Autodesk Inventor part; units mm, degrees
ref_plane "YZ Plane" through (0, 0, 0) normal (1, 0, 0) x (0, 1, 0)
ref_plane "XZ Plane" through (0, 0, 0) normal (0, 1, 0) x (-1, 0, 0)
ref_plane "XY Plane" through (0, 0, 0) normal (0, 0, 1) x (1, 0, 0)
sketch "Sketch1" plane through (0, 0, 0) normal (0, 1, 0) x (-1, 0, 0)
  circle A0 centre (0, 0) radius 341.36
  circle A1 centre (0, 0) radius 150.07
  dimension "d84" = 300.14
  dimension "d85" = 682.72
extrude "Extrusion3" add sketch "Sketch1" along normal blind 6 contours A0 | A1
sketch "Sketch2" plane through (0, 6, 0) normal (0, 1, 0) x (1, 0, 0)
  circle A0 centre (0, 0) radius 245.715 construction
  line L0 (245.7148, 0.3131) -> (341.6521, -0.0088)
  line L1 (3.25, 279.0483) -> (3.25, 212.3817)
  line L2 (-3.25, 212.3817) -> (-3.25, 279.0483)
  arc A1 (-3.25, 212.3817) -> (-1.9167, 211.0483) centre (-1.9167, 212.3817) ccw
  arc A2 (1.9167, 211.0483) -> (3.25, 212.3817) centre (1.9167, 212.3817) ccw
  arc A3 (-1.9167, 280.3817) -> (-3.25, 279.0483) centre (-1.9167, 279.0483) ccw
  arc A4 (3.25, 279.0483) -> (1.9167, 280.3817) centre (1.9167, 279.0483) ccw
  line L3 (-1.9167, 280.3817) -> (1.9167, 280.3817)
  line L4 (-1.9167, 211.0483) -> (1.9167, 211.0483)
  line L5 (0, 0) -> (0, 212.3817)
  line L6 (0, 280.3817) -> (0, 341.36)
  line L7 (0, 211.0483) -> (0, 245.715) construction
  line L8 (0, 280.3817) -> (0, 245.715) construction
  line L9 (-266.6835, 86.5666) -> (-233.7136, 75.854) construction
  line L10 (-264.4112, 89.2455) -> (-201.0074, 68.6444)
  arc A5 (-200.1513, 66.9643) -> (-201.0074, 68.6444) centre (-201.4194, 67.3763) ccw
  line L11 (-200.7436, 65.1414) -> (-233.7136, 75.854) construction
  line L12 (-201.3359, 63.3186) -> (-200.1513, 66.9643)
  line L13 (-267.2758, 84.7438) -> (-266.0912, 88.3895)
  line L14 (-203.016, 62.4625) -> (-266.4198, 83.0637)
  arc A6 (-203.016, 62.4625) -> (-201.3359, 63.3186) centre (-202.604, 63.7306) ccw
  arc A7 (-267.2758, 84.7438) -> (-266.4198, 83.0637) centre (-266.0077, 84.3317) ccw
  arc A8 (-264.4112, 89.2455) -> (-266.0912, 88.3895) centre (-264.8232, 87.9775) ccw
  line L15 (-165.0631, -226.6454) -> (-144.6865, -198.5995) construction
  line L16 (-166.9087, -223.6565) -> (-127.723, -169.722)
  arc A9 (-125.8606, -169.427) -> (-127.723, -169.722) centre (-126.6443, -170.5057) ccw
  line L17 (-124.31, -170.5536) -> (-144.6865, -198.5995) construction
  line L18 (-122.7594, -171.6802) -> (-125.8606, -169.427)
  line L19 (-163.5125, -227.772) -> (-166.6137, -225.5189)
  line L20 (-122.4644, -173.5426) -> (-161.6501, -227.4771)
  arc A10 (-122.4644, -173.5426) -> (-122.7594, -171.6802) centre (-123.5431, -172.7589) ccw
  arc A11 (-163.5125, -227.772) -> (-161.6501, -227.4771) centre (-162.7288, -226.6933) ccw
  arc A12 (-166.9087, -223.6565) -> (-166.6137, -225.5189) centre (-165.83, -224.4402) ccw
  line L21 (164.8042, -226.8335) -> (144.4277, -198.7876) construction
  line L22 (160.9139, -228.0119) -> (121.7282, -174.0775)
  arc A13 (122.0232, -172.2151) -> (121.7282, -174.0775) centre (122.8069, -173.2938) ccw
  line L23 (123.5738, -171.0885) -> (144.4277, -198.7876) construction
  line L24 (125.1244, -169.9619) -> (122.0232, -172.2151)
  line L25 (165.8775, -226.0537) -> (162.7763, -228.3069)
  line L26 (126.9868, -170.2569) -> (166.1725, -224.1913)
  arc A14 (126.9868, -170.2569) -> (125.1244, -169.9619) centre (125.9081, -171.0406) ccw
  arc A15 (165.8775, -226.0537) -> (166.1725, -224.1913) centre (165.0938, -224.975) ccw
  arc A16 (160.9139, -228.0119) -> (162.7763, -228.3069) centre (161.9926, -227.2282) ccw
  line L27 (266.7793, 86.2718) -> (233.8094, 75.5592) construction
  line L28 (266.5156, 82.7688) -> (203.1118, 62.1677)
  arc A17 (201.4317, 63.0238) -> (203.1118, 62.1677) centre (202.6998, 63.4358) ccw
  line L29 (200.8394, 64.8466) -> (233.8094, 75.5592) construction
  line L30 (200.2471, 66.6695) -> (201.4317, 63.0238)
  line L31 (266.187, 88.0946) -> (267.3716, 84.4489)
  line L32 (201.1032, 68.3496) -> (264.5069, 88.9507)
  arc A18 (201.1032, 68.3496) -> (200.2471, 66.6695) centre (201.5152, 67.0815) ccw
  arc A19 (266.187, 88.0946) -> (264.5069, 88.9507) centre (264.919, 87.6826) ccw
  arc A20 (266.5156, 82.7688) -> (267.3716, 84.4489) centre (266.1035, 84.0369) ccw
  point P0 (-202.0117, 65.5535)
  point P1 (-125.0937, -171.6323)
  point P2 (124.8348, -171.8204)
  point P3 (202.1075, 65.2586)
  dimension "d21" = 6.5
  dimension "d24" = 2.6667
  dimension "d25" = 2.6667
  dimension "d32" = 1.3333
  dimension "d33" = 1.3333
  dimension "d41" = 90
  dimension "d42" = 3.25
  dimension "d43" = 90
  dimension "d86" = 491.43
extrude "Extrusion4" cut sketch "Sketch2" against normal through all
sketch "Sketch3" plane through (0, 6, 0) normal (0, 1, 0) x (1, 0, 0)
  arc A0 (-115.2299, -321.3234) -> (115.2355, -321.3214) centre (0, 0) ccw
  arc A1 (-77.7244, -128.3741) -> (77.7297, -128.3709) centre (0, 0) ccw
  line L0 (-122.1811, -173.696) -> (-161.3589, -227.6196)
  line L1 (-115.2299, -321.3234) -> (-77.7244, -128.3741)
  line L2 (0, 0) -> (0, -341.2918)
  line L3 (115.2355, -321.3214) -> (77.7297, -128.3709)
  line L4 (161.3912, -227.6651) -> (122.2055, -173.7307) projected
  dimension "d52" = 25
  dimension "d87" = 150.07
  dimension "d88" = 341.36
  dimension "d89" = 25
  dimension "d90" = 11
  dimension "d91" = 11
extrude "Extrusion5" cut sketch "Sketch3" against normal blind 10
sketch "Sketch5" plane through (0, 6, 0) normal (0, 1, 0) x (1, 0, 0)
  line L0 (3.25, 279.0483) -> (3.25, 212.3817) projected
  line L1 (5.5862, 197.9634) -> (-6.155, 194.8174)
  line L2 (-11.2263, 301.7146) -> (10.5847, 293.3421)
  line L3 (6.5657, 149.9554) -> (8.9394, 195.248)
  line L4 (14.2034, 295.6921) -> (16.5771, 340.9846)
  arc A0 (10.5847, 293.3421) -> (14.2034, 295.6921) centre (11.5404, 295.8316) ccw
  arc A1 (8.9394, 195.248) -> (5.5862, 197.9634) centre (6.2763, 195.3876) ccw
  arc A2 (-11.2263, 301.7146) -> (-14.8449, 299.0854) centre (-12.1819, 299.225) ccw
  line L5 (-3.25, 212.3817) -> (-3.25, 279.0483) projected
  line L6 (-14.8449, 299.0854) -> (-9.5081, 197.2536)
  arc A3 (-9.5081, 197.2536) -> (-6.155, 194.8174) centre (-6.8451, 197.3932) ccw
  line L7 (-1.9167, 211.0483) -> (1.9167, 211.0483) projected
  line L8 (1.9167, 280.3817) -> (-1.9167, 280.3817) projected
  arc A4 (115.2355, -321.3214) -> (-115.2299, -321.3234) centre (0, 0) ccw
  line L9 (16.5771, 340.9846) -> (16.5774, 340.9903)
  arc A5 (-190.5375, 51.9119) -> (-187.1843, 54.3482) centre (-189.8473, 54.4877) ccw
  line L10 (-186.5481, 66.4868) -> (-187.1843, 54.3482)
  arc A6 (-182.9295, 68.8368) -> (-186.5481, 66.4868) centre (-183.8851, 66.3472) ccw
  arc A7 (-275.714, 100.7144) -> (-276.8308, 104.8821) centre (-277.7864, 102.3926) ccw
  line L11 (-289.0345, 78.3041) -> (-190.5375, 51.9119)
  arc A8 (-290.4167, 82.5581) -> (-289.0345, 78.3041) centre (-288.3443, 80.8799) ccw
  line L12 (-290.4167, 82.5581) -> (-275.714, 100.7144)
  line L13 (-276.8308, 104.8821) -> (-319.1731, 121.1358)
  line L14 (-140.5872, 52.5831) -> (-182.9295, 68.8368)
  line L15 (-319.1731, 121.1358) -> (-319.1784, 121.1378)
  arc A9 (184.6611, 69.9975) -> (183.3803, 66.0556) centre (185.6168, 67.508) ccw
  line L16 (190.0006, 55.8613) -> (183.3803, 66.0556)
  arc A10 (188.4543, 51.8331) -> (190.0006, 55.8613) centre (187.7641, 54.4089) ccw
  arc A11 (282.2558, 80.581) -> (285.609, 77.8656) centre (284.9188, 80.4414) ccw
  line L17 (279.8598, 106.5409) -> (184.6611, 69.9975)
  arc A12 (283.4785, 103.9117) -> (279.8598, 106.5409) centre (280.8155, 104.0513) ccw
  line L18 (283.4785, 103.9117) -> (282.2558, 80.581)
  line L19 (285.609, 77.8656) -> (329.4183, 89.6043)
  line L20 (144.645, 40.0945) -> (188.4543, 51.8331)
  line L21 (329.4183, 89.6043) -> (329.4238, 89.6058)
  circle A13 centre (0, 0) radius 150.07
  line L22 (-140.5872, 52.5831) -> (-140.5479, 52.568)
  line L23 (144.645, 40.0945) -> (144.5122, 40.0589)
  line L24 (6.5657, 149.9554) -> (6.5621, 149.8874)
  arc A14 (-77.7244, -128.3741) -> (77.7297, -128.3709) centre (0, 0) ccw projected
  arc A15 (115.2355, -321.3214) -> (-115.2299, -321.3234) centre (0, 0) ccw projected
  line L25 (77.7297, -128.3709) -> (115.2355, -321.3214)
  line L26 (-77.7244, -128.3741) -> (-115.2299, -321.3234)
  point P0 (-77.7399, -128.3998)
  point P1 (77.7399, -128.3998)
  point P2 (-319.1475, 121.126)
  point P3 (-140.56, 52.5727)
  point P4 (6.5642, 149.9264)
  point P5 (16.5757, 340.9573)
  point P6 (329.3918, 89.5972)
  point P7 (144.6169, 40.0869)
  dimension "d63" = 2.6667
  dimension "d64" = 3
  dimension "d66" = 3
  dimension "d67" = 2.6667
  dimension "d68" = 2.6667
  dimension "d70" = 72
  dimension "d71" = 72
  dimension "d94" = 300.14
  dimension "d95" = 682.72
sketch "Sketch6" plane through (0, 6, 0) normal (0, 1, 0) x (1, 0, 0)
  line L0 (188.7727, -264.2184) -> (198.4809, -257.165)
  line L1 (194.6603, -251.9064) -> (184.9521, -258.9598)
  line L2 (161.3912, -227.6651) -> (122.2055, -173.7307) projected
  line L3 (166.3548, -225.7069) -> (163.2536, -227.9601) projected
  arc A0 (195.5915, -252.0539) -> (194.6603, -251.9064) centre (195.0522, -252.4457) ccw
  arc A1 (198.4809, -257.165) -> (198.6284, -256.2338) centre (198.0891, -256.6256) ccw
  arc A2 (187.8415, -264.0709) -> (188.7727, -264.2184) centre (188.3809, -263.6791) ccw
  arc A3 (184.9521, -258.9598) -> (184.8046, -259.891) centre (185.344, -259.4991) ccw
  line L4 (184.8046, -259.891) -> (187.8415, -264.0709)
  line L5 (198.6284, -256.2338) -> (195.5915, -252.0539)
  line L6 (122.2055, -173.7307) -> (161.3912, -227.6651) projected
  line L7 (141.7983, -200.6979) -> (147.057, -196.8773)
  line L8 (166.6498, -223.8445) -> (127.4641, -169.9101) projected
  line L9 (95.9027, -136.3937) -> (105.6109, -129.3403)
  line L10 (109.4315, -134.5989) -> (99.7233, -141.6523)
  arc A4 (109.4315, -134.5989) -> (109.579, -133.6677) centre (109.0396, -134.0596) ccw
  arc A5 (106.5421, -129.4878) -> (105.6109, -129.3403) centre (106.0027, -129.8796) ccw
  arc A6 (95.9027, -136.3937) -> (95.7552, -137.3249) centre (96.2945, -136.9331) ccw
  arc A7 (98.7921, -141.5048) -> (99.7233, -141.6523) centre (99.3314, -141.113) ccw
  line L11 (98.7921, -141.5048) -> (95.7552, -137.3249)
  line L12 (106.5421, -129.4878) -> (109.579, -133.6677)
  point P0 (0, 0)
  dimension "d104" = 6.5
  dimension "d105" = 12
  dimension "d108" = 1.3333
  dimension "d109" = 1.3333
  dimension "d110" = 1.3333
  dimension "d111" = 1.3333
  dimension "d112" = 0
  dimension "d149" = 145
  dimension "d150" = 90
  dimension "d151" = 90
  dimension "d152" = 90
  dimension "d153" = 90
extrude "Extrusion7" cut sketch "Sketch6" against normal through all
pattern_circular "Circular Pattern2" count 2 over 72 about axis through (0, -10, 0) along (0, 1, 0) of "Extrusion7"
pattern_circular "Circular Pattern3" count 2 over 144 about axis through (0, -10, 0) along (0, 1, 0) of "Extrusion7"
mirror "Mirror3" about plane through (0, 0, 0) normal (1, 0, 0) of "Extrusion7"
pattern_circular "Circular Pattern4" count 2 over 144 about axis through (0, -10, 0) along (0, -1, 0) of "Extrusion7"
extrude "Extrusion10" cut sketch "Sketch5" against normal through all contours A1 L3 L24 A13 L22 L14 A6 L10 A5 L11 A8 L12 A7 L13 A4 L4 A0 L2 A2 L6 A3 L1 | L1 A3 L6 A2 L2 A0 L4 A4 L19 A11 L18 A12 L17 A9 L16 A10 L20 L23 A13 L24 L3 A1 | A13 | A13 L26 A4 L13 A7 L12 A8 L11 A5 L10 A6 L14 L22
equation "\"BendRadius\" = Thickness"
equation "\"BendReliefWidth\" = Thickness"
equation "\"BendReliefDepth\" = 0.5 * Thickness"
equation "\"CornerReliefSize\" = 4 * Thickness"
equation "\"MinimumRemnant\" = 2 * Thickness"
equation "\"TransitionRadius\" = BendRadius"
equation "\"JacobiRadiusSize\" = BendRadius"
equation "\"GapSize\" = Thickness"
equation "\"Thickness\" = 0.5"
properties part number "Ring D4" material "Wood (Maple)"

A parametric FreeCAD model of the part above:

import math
import FreeCAD as App
import Part
import Sketcher
Q = App.Units.Quantity

doc = App.newDocument("Part")
body = doc.addObject("PartDesign::Body", "Body")

# Sketch on XZ plane
sketch1 = body.newObject("Sketcher::SketchObject", "Sketch")
sketch1.AttachmentSupport = (doc.getObject("XZ_Plane"), [""])
sketch1.MapMode = "FlatFace"
sketch1.addGeometry(Part.Circle(App.Vector(0, 0, 0), App.Vector(0, 0, 1), 341), False)
sketch1.addConstraint(Sketcher.Constraint("Coincident", 0, 3, -1, 1))
sketch1.addConstraint(Sketcher.Constraint("Diameter", 0, 682.72))
pad1 = body.newObject("PartDesign::Pad", "Pad")
pad1.Profile = sketch1
pad1.Length = 6
pad1.Reversed = True

# Sketch on XZ plane
sketch2 = body.newObject("Sketcher::SketchObject", "Sketch001")
sketch2.AttachmentSupport = (doc.getObject("XZ_Plane"), [""])
sketch2.MapMode = "FlatFace"
sketch2.AttachmentOffset = App.Placement(App.Vector(0, 0, -6), App.Rotation())
sketch2.addGeometry(Part.LineSegment(App.Vector(3.2, -212.4, 0), App.Vector(3.2, -279, 0)), False)
sketch2.addGeometry(Part.ArcOfCircle(Part.Circle(App.Vector(1.9, -279, 0), App.Vector(0, 0, 1), 1.3), math.radians(-90), math.radians(0)), False)
sketch2.addGeometry(Part.LineSegment(App.Vector(1.9, -280.4, 0), App.Vector(-1.9, -280.4, 0)), False)
sketch2.addGeometry(Part.ArcOfCircle(Part.Circle(App.Vector(-1.9, -279, 0), App.Vector(0, 0, 1), 1.3), math.radians(180), math.radians(270)), False)
sketch2.addGeometry(Part.LineSegment(App.Vector(-3.2, -279, 0), App.Vector(-3.2, -212.4, 0)), False)
sketch2.addGeometry(Part.ArcOfCircle(Part.Circle(App.Vector(-1.9, -212.4, 0), App.Vector(0, 0, 1), 1.3), math.radians(90), math.radians(180)), False)
sketch2.addGeometry(Part.LineSegment(App.Vector(-1.9, -211, 0), App.Vector(1.9, -211, 0)), False)
sketch2.addGeometry(Part.ArcOfCircle(Part.Circle(App.Vector(1.9, -212.4, 0), App.Vector(0, 0, 1), 1.3), math.radians(0), math.radians(90)), False)
sketch2.addGeometry(Part.LineSegment(App.Vector(-201, -68.6, 0), App.Vector(-264.4, -89.2, 0)), False)
sketch2.addGeometry(Part.ArcOfCircle(Part.Circle(App.Vector(-264.8, -88, 0), App.Vector(0, 0, 1), 1.3), math.radians(-162), math.radians(-72)), False)
sketch2.addGeometry(Part.LineSegment(App.Vector(-266.1, -88.4, 0), App.Vector(-267.3, -84.7, 0)), False)
sketch2.addGeometry(Part.ArcOfCircle(Part.Circle(App.Vector(-266, -84.3, 0), App.Vector(0, 0, 1), 1.3), math.radians(108), math.radians(198)), False)
sketch2.addGeometry(Part.LineSegment(App.Vector(-266.4, -83.1, 0), App.Vector(-203, -62.5, 0)), False)
sketch2.addGeometry(Part.ArcOfCircle(Part.Circle(App.Vector(-202.6, -63.7, 0), App.Vector(0, 0, 1), 1.3), math.radians(18), math.radians(108)), False)
sketch2.addGeometry(Part.LineSegment(App.Vector(-201.3, -63.3, 0), App.Vector(-200.2, -67, 0)), False)
sketch2.addGeometry(Part.ArcOfCircle(Part.Circle(App.Vector(-201.4, -67.4, 0), App.Vector(0, 0, 1), 1.3), math.radians(-72), math.radians(18)), False)
sketch2.addGeometry(Part.LineSegment(App.Vector(-127.7, 169.7, 0), App.Vector(-166.9, 223.7, 0)), False)
sketch2.addGeometry(Part.ArcOfCircle(Part.Circle(App.Vector(-165.8, 224.4, 0), App.Vector(0, 0, 1), 1.3), math.radians(126), math.radians(216)), False)
sketch2.addGeometry(Part.LineSegment(App.Vector(-166.6, 225.5, 0), App.Vector(-163.5, 227.8, 0)), False)
sketch2.addGeometry(Part.ArcOfCircle(Part.Circle(App.Vector(-162.7, 226.7, 0), App.Vector(0, 0, 1), 1.3), math.radians(36), math.radians(126)), False)
sketch2.addGeometry(Part.LineSegment(App.Vector(-161.7, 227.5, 0), App.Vector(-122.5, 173.5, 0)), False)
sketch2.addGeometry(Part.ArcOfCircle(Part.Circle(App.Vector(-123.5, 172.8, 0), App.Vector(0, 0, 1), 1.3), math.radians(-54), math.radians(36)), False)
sketch2.addGeometry(Part.LineSegment(App.Vector(-122.8, 171.7, 0), App.Vector(-125.9, 169.4, 0)), False)
sketch2.addGeometry(Part.ArcOfCircle(Part.Circle(App.Vector(-126.6, 170.5, 0), App.Vector(0, 0, 1), 1.3), math.radians(-144), math.radians(-54)), False)
sketch2.addGeometry(Part.LineSegment(App.Vector(121.7, 174.1, 0), App.Vector(160.9, 228, 0)), False)
sketch2.addGeometry(Part.ArcOfCircle(Part.Circle(App.Vector(162, 227.2, 0), App.Vector(0, 0, 1), 1.3), math.radians(54), math.radians(144)), False)
sketch2.addGeometry(Part.LineSegment(App.Vector(162.8, 228.3, 0), App.Vector(165.9, 226.1, 0)), False)
sketch2.addGeometry(Part.ArcOfCircle(Part.Circle(App.Vector(165.1, 225, 0), App.Vector(0, 0, 1), 1.3), math.radians(-36), math.radians(54)), False)
sketch2.addGeometry(Part.LineSegment(App.Vector(166.2, 224.2, 0), App.Vector(127, 170.3, 0)), False)
sketch2.addGeometry(Part.ArcOfCircle(Part.Circle(App.Vector(125.9, 171, 0), App.Vector(0, 0, 1), 1.3), math.radians(-126), math.radians(-36)), False)
sketch2.addGeometry(Part.LineSegment(App.Vector(125.1, 170, 0), App.Vector(122, 172.2, 0)), False)
sketch2.addGeometry(Part.ArcOfCircle(Part.Circle(App.Vector(122.8, 173.3, 0), App.Vector(0, 0, 1), 1.3), math.radians(144), math.radians(234)), False)
sketch2.addGeometry(Part.LineSegment(App.Vector(203.1, -62.2, 0), App.Vector(266.5, -82.8, 0)), False)
sketch2.addGeometry(Part.ArcOfCircle(Part.Circle(App.Vector(266.1, -84, 0), App.Vector(0, 0, 1), 1.3), math.radians(-18), math.radians(72)), False)
sketch2.addGeometry(Part.LineSegment(App.Vector(267.4, -84.4, 0), App.Vector(266.2, -88.1, 0)), False)
sketch2.addGeometry(Part.ArcOfCircle(Part.Circle(App.Vector(264.9, -87.7, 0), App.Vector(0, 0, 1), 1.3), math.radians(-108), math.radians(-18)), False)
sketch2.addGeometry(Part.LineSegment(App.Vector(264.5, -89, 0), App.Vector(201.1, -68.3, 0)), False)
sketch2.addGeometry(Part.ArcOfCircle(Part.Circle(App.Vector(201.5, -67.1, 0), App.Vector(0, 0, 1), 1.3), math.radians(162), math.radians(252)), False)
sketch2.addGeometry(Part.LineSegment(App.Vector(200.2, -66.7, 0), App.Vector(201.4, -63, 0)), False)
sketch2.addGeometry(Part.ArcOfCircle(Part.Circle(App.Vector(202.7, -63.4, 0), App.Vector(0, 0, 1), 1.3), math.radians(72), math.radians(162)), False)
sketch2.addConstraint(Sketcher.Constraint("Tangent", 0, 2, 1, 2))
sketch2.addConstraint(Sketcher.Constraint("Tangent", 1, 1, 2, 1))
sketch2.addConstraint(Sketcher.Constraint("Tangent", 2, 2, 3, 2))
sketch2.addConstraint(Sketcher.Constraint("Tangent", 3, 1, 4, 1))
sketch2.addConstraint(Sketcher.Constraint("Tangent", 4, 2, 5, 2))
sketch2.addConstraint(Sketcher.Constraint("Tangent", 5, 1, 6, 1))
sketch2.addConstraint(Sketcher.Constraint("Tangent", 6, 2, 7, 2))
sketch2.addConstraint(Sketcher.Constraint("Tangent", 7, 1, 0, 1))
sketch2.addConstraint(Sketcher.Constraint("Tangent", 8, 2, 9, 2))
sketch2.addConstraint(Sketcher.Constraint("Tangent", 9, 1, 10, 1))
sketch2.addConstraint(Sketcher.Constraint("Tangent", 10, 2, 11, 2))
sketch2.addConstraint(Sketcher.Constraint("Tangent", 11, 1, 12, 1))
sketch2.addConstraint(Sketcher.Constraint("Tangent", 12, 2, 13, 2))
sketch2.addConstraint(Sketcher.Constraint("Tangent", 13, 1, 14, 1))
sketch2.addConstraint(Sketcher.Constraint("Tangent", 14, 2, 15, 2))
sketch2.addConstraint(Sketcher.Constraint("Tangent", 15, 1, 8, 1))
sketch2.addConstraint(Sketcher.Constraint("Tangent", 16, 2, 17, 2))
sketch2.addConstraint(Sketcher.Constraint("Tangent", 17, 1, 18, 1))
sketch2.addConstraint(Sketcher.Constraint("Tangent", 18, 2, 19, 2))
sketch2.addConstraint(Sketcher.Constraint("Tangent", 19, 1, 20, 1))
sketch2.addConstraint(Sketcher.Constraint("Tangent", 20, 2, 21, 2))
sketch2.addConstraint(Sketcher.Constraint("Tangent", 21, 1, 22, 1))
sketch2.addConstraint(Sketcher.Constraint("Tangent", 22, 2, 23, 2))
sketch2.addConstraint(Sketcher.Constraint("Tangent", 23, 1, 16, 1))
sketch2.addConstraint(Sketcher.Constraint("Tangent", 24, 2, 25, 2))
sketch2.addConstraint(Sketcher.Constraint("Tangent", 25, 1, 26, 1))
sketch2.addConstraint(Sketcher.Constraint("Tangent", 26, 2, 27, 2))
sketch2.addConstraint(Sketcher.Constraint("Tangent", 27, 1, 28, 1))
sketch2.addConstraint(Sketcher.Constraint("Tangent", 28, 2, 29, 2))
sketch2.addConstraint(Sketcher.Constraint("Tangent", 29, 1, 30, 1))
sketch2.addConstraint(Sketcher.Constraint("Tangent", 30, 2, 31, 2))
sketch2.addConstraint(Sketcher.Constraint("Tangent", 31, 1, 24, 1))
sketch2.addConstraint(Sketcher.Constraint("Tangent", 32, 2, 33, 2))
sketch2.addConstraint(Sketcher.Constraint("Tangent", 33, 1, 34, 1))
sketch2.addConstraint(Sketcher.Constraint("Tangent", 34, 2, 35, 2))
sketch2.addConstraint(Sketcher.Constraint("Tangent", 35, 1, 36, 1))
sketch2.addConstraint(Sketcher.Constraint("Tangent", 36, 2, 37, 2))
sketch2.addConstraint(Sketcher.Constraint("Tangent", 37, 1, 38, 1))
sketch2.addConstraint(Sketcher.Constraint("Tangent", 38, 2, 39, 2))
sketch2.addConstraint(Sketcher.Constraint("Tangent", 39, 1, 32, 1))
sketch2.addConstraint(Sketcher.Constraint("Vertical", 0))
sketch2.addConstraint(Sketcher.Constraint("Horizontal", 2))
sketch2.addConstraint(Sketcher.Constraint("Vertical", 4))
sketch2.addConstraint(Sketcher.Constraint("Horizontal", 6))
sketch2.addConstraint(Sketcher.Constraint("Equal", 1, 3))
sketch2.addConstraint(Sketcher.Constraint("Equal", 3, 5))
sketch2.addConstraint(Sketcher.Constraint("Equal", 5, 7))
sketch2.addConstraint(Sketcher.Constraint("Equal", 7, 9))
sketch2.addConstraint(Sketcher.Constraint("Equal", 9, 11))
sketch2.addConstraint(Sketcher.Constraint("Equal", 11, 13))
sketch2.addConstraint(Sketcher.Constraint("Equal", 13, 15))
sketch2.addConstraint(Sketcher.Constraint("Equal", 15, 17))
sketch2.addConstraint(Sketcher.Constraint("Equal", 17, 19))
sketch2.addConstraint(Sketcher.Constraint("Equal", 19, 21))
sketch2.addConstraint(Sketcher.Constraint("Equal", 21, 23))
sketch2.addConstraint(Sketcher.Constraint("Equal", 23, 25))
sketch2.addConstraint(Sketcher.Constraint("Equal", 25, 27))
sketch2.addConstraint(Sketcher.Constraint("Equal", 27, 29))
sketch2.addConstraint(Sketcher.Constraint("Equal", 29, 31))
sketch2.addConstraint(Sketcher.Constraint("Equal", 31, 33))
sketch2.addConstraint(Sketcher.Constraint("Equal", 33, 35))
sketch2.addConstraint(Sketcher.Constraint("Equal", 35, 37))
sketch2.addConstraint(Sketcher.Constraint("Equal", 37, 39))
sketch2.addConstraint(Sketcher.Constraint("Perpendicular", 8, 10))
sketch2.addConstraint(Sketcher.Constraint("Perpendicular", 10, 12))
sketch2.addConstraint(Sketcher.Constraint("Perpendicular", 12, 14))
sketch2.addConstraint(Sketcher.Constraint("Perpendicular", 16, 18))
sketch2.addConstraint(Sketcher.Constraint("Perpendicular", 18, 20))
sketch2.addConstraint(Sketcher.Constraint("Perpendicular", 20, 22))
sketch2.addConstraint(Sketcher.Constraint("Perpendicular", 24, 26))
sketch2.addConstraint(Sketcher.Constraint("Perpendicular", 26, 28))
sketch2.addConstraint(Sketcher.Constraint("Perpendicular", 28, 30))
sketch2.addConstraint(Sketcher.Constraint("Perpendicular", 32, 34))
sketch2.addConstraint(Sketcher.Constraint("Perpendicular", 34, 36))
sketch2.addConstraint(Sketcher.Constraint("Perpendicular", 36, 38))
sketch2.addConstraint(Sketcher.Constraint("Equal", 12, 16))
sketch2.addConstraint(Sketcher.Constraint("Equal", 14, 18))
sketch2.addConstraint(Sketcher.Constraint("Equal", 20, 24))
sketch2.addConstraint(Sketcher.Constraint("Equal", 22, 26))
sketch2.addConstraint(Sketcher.Constraint("Equal", 28, 32))
sketch2.addConstraint(Sketcher.Constraint("Equal", 30, 34))
sketch2.addConstraint(Sketcher.Constraint("Radius", 1, Q("0.0525 in")))
sketch2.addConstraint(Sketcher.Constraint("Angle", 8, Q("-162 deg")))
sketch2.addConstraint(Sketcher.Constraint("Angle", 16, Q("126 deg")))
sketch2.addConstraint(Sketcher.Constraint("Angle", 24, Q("54 deg")))
sketch2.addConstraint(Sketcher.Constraint("Angle", 32, Q("-18 deg")))
sketch2.addConstraint(Sketcher.Constraint("DistanceX", 3, 1, 0, 2, Q("0.2559 in")))
sketch2.addConstraint(Sketcher.Constraint("DistanceX", -1, 1, 0, 2, 3.25))
sketch2.addConstraint(Sketcher.Constraint("DistanceX", 8, 2, 15, 3, Q("2.48 in")))
sketch2.addConstraint(Sketcher.Constraint("DistanceX", 23, 3, -1, 1, Q("4.986 in")))
sketch2.addConstraint(Sketcher.Constraint("DistanceY", -1, 1, 25, 3, Q("8.946 in")))
sketch2.addConstraint(Sketcher.Constraint("DistanceX", -1, 1, 29, 3, Q("4.957 in")))
sketch2.addConstraint(Sketcher.Constraint("DistanceY", 37, 3, -1, 1, Q("2.641 in")))
sketch2.addConstraint(Sketcher.Constraint("DistanceY", 5, 1, -1, 1, Q("8.309 in")))
sketch2.addConstraint(Sketcher.Constraint("DistanceX", 18, 2, -1, 1, Q("6.4375 in")))
sketch2.addConstraint(Sketcher.Constraint("DistanceY", 3, 3, 11, 3, Q("7.666 in")))
sketch2.addConstraint(Sketcher.Constraint("DistanceX", 13, 3, 7, 3, Q("8.052 in")))
sketch2.addConstraint(Sketcher.Constraint("DistanceY", 13, 3, 19, 3, Q("11.434 in")))
sketch2.addConstraint(Sketcher.Constraint("DistanceY", 0, 2, 0, 1, 66.6666))
sketch2.addConstraint(Sketcher.Constraint("DistanceX", -1, 1, 39, 3, Q("7.9803 in")))
pocket1 = body.newObject("PartDesign::Pocket", "Pocket")
pocket1.Profile = sketch2
pocket1.Type = "ThroughAll"
pocket1.Reversed = True

# Sketch on XZ plane
sketch3 = body.newObject("Sketcher::SketchObject", "Sketch002")
sketch3.AttachmentSupport = (doc.getObject("XZ_Plane"), [""])
sketch3.MapMode = "FlatFace"
sketch3.AttachmentOffset = App.Placement(App.Vector(0, 0, -6), App.Rotation())
sketch3.addGeometry(Part.LineSegment(App.Vector(-78, 128, 0), App.Vector(-115, 321, 0)), False)
sketch3.addGeometry(Part.ArcOfCircle(Part.Circle(App.Vector(0, 0, 0), App.Vector(0, 0, 1), 341), math.radians(70), math.radians(110)), False)
sketch3.addGeometry(Part.LineSegment(App.Vector(115, 321, 0), App.Vector(78, 128, 0)), False)
sketch3.addGeometry(Part.ArcOfCircle(Part.Circle(App.Vector(0, 0, 0), App.Vector(0, 0, 1), 150), math.radians(59), math.radians(121)), False)
sketch3.addConstraint(Sketcher.Constraint("Coincident", 0, 2, 1, 2))
sketch3.addConstraint(Sketcher.Constraint("Coincident", 1, 1, 2, 1))
sketch3.addConstraint(Sketcher.Constraint("Coincident", 2, 2, 3, 1))
sketch3.addConstraint(Sketcher.Constraint("Coincident", 3, 2, 0, 1))
sketch3.addConstraint(Sketcher.Constraint("Coincident", 1, 3, -1, 1))
sketch3.addConstraint(Sketcher.Constraint("Coincident", 3, 3, -1, 1))
sketch3.addConstraint(Sketcher.Constraint("Radius", 1, 341.36))
sketch3.addConstraint(Sketcher.Constraint("Radius", 3, 150.07))
sketch3.addConstraint(Sketcher.Constraint("Angle", 0, Q("101 deg")))
sketch3.addConstraint(Sketcher.Constraint("Angle", 2, Q("-101 deg")))
sketch3.addConstraint(Sketcher.Constraint("Distance", 0, Q("7.7386 in")))
sketch3.addConstraint(Sketcher.Constraint("Distance", 2, 196.562))
pocket2 = body.newObject("PartDesign::Pocket", "Pocket001")
pocket2.Profile = sketch3
pocket2.Length = Q("0.3937008 in")
pocket2.Reversed = True

# Sketch on XZ plane
sketch4 = body.newObject("Sketcher::SketchObject", "Sketch003")
sketch4.AttachmentSupport = (doc.getObject("XZ_Plane"), [""])
sketch4.MapMode = "FlatFace"
sketch4.AttachmentOffset = App.Placement(App.Vector(0, 0, -6), App.Rotation())
sketch4.addGeometry(Part.ArcOfCircle(Part.Circle(App.Vector(188.4, 263.7, 0), App.Vector(0, 0, 1), 0.7), math.radians(54), math.radians(144)), False)
sketch4.addGeometry(Part.LineSegment(App.Vector(188.8, 264.2, 0), App.Vector(198.5, 257.2, 0)), False)
sketch4.addGeometry(Part.ArcOfCircle(Part.Circle(App.Vector(198.1, 256.6, 0), App.Vector(0, 0, 1), 0.7), math.radians(-36), math.radians(54)), False)
sketch4.addGeometry(Part.LineSegment(App.Vector(198.6, 256.2, 0), App.Vector(195.6, 252.1, 0)), False)
sketch4.addGeometry(Part.ArcOfCircle(Part.Circle(App.Vector(195.1, 252.4, 0), App.Vector(0, 0, 1), 0.7), math.radians(-126), math.radians(-36)), False)
sketch4.addGeometry(Part.LineSegment(App.Vector(194.7, 251.9, 0), App.Vector(185, 259, 0)), False)
sketch4.addGeometry(Part.ArcOfCircle(Part.Circle(App.Vector(185.3, 259.5, 0), App.Vector(0, 0, 1), 0.7), math.radians(144), math.radians(234)), False)
sketch4.addGeometry(Part.LineSegment(App.Vector(184.8, 259.9, 0), App.Vector(187.8, 264.1, 0)), False)
sketch4.addGeometry(Part.LineSegment(App.Vector(105.6, 129.3, 0), App.Vector(95.9, 136.4, 0)), False)
sketch4.addGeometry(Part.ArcOfCircle(Part.Circle(App.Vector(96.3, 136.9, 0), App.Vector(0, 0, 1), 0.7), math.radians(144), math.radians(234)), False)
sketch4.addGeometry(Part.LineSegment(App.Vector(95.8, 137.3, 0), App.Vector(98.8, 141.5, 0)), False)
sketch4.addGeometry(Part.ArcOfCircle(Part.Circle(App.Vector(99.3, 141.1, 0), App.Vector(0, 0, 1), 0.7), math.radians(54), math.radians(144)), False)
sketch4.addGeometry(Part.LineSegment(App.Vector(99.7, 141.7, 0), App.Vector(109.4, 134.6, 0)), False)
sketch4.addGeometry(Part.ArcOfCircle(Part.Circle(App.Vector(109, 134.1, 0), App.Vector(0, 0, 1), 0.7), math.radians(-36), math.radians(54)), False)
sketch4.addGeometry(Part.LineSegment(App.Vector(109.6, 133.7, 0), App.Vector(106.5, 129.5, 0)), False)
sketch4.addGeometry(Part.ArcOfCircle(Part.Circle(App.Vector(106, 129.9, 0), App.Vector(0, 0, 1), 0.7), math.radians(-126), math.radians(-36)), False)
sketch4.addConstraint(Sketcher.Constraint("Tangent", 0, 1, 1, 1))
sketch4.addConstraint(Sketcher.Constraint("Tangent", 1, 2, 2, 2))
sketch4.addConstraint(Sketcher.Constraint("Tangent", 2, 1, 3, 1))
sketch4.addConstraint(Sketcher.Constraint("Tangent", 3, 2, 4, 2))
sketch4.addConstraint(Sketcher.Constraint("Tangent", 4, 1, 5, 1))
sketch4.addConstraint(Sketcher.Constraint("Tangent", 5, 2, 6, 2))
sketch4.addConstraint(Sketcher.Constraint("Tangent", 6, 1, 7, 1))
sketch4.addConstraint(Sketcher.Constraint("Tangent", 7, 2, 0, 2))
sketch4.addConstraint(Sketcher.Constraint("Tangent", 8, 2, 9, 2))
sketch4.addConstraint(Sketcher.Constraint("Tangent", 9, 1, 10, 1))
sketch4.addConstraint(Sketcher.Constraint("Tangent", 10, 2, 11, 2))
sketch4.addConstraint(Sketcher.Constraint("Tangent", 11, 1, 12, 1))
sketch4.addConstraint(Sketcher.Constraint("Tangent", 12, 2, 13, 2))
sketch4.addConstraint(Sketcher.Constraint("Tangent", 13, 1, 14, 1))
sketch4.addConstraint(Sketcher.Constraint("Tangent", 14, 2, 15, 2))
sketch4.addConstraint(Sketcher.Constraint("Tangent", 15, 1, 8, 1))
sketch4.addConstraint(Sketcher.Constraint("Equal", 0, 2))
sketch4.addConstraint(Sketcher.Constraint("Equal", 2, 4))
sketch4.addConstraint(Sketcher.Constraint("Equal", 4, 6))
sketch4.addConstraint(Sketcher.Constraint("Equal", 6, 9))
sketch4.addConstraint(Sketcher.Constraint("Equal", 9, 11))
sketch4.addConstraint(Sketcher.Constraint("Equal", 11, 13))
sketch4.addConstraint(Sketcher.Constraint("Equal", 13, 15))
sketch4.addConstraint(Sketcher.Constraint("Perpendicular", 1, 3))
sketch4.addConstraint(Sketcher.Constraint("Perpendicular", 3, 5))
sketch4.addConstraint(Sketcher.Constraint("Perpendicular", 5, 7))
sketch4.addConstraint(Sketcher.Constraint("Perpendicular", 7, 8))
sketch4.addConstraint(Sketcher.Constraint("Perpendicular", 8, 10))
sketch4.addConstraint(Sketcher.Constraint("Perpendicular", 10, 12))
sketch4.addConstraint(Sketcher.Constraint("Perpendicular", 12, 14))
sketch4.addConstraint(Sketcher.Constraint("Equal", 5, 8))
sketch4.addConstraint(Sketcher.Constraint("Equal", 7, 10))
sketch4.addConstraint(Sketcher.Constraint("Radius", 0, 0.6667))
sketch4.addConstraint(Sketcher.Constraint("Angle", 1, Q("-36 deg")))
sketch4.addConstraint(Sketcher.Constraint("Distance", 1, 12.0))
sketch4.addConstraint(Sketcher.Constraint("DistanceY", 9, 3, 0, 3, Q("4.99 in")))
sketch4.addConstraint(Sketcher.Constraint("DistanceY", 3, 2, 2, 3, Q("0.18 in")))
sketch4.addConstraint(Sketcher.Constraint("DistanceX", -1, 1, 6, 3, Q("7.297 in")))
sketch4.addConstraint(Sketcher.Constraint("DistanceY", -1, 1, 4, 3, Q("9.9388 in")))
sketch4.addConstraint(Sketcher.Constraint("DistanceX", -1, 1, 13, 3, Q("4.2929 in")))
pocket3 = body.newObject("PartDesign::Pocket", "Pocket002")
pocket3.Profile = sketch4
pocket3.Type = "ThroughAll"
pocket3.Reversed = True
doc.recompute()

polarpattern = body.newObject("PartDesign::PolarPattern", "PolarPattern")
polarpattern.Originals = [pocket3]
polarpattern.Axis = (doc.getObject("Y_Axis"), [""])
polarpattern.Angle = 72
polarpattern.Occurrences = 2
body.Tip = polarpattern
doc.recompute()

polarpattern2 = body.newObject("PartDesign::PolarPattern", "PolarPattern001")
polarpattern2.Originals = [pocket3]
polarpattern2.Axis = (doc.getObject("Y_Axis"), [""])
polarpattern2.Angle = 144
polarpattern2.Occurrences = 2
body.Tip = polarpattern2
doc.recompute()

mirrored = body.newObject("PartDesign::Mirrored", "Mirrored")
mirrored.Originals = [pocket3]
mirrored.MirrorPlane = (doc.getObject("YZ_Plane"), [""])
body.Tip = mirrored
doc.recompute()

polarpattern3 = body.newObject("PartDesign::PolarPattern", "PolarPattern002")
polarpattern3.Originals = [pocket3]
polarpattern3.Axis = (doc.getObject("Y_Axis"), [""])
polarpattern3.Angle = 144
polarpattern3.Occurrences = 2
polarpattern3.Reversed = True
body.Tip = polarpattern3

# Sketch on XZ plane
sketch5 = body.newObject("Sketcher::SketchObject", "Sketch004")
sketch5.AttachmentSupport = (doc.getObject("XZ_Plane"), [""])
sketch5.MapMode = "FlatFace"
sketch5.AttachmentOffset = App.Placement(App.Vector(0, 0, -6), App.Rotation())
sketch5.addGeometry(Part.LineSegment(App.Vector(-115.2299, 321.3234, 0), App.Vector(-77.7244, 128.3741, 0)), False)
sketch5.addGeometry(Part.ArcOfCircle(Part.Circle(App.Vector(0, 0, 0), App.Vector(0, 0, 1), 150.07), math.radians(-15.493066), math.radians(121.192907)), False)
sketch5.addGeometry(Part.LineSegment(App.Vector(144.616875, -40.08696, 0), App.Vector(144.645, -40.0945, 0)), False)
sketch5.addGeometry(Part.LineSegment(App.Vector(144.645, -40.0945, 0), App.Vector(188.4543, -51.8331, 0)), False)
sketch5.addGeometry(Part.ArcOfCircle(Part.Circle(App.Vector(187.7641, -54.4089, 0), App.Vector(0, 0, 1), 2.666669), math.radians(-32.999999), math.radians(74.999658)), False)
sketch5.addGeometry(Part.LineSegment(App.Vector(190.0006, -55.8613, 0), App.Vector(183.3803, -66.0556, 0)), False)
sketch5.addGeometry(Part.ArcOfCircle(Part.Circle(App.Vector(185.6168, -67.508, 0), App.Vector(0, 0, 1), 2.666641), math.radians(147.000001), math.radians(248.998586)), False)
sketch5.addGeometry(Part.LineSegment(App.Vector(184.6611, -69.9975, 0), App.Vector(279.8598, -106.5409, 0)), False)
sketch5.addGeometry(Part.ArcOfCircle(Part.Circle(App.Vector(280.8155, -104.0513, 0), App.Vector(0, 0, 1), 2.666657), math.radians(-111.000644), math.radians(3.000817)), False)
sketch5.addGeometry(Part.LineSegment(App.Vector(283.4785, -103.9117, 0), App.Vector(282.2558, -80.581, 0)), False)
sketch5.addGeometry(Part.ArcOfCircle(Part.Circle(App.Vector(284.9188, -80.4414, 0), App.Vector(0, 0, 1), 2.666657), math.radians(74.999658), math.radians(183.000817)), False)
sketch5.addGeometry(Part.LineSegment(App.Vector(285.609, -77.8656, 0), App.Vector(329.391875, -89.597219, 0)), False)
sketch5.addGeometry(Part.ArcOfCircle(Part.Circle(App.Vector(0, 0, 0), App.Vector(0, 0, 1), 341.360019), math.radians(109.72836), math.radians(344.783247)), False)
sketch5.addConstraint(Sketcher.Constraint("Coincident", 0, 2, 1, 2))
sketch5.addConstraint(Sketcher.Constraint("Coincident", 1, 1, 2, 1))
sketch5.addConstraint(Sketcher.Constraint("Coincident", 2, 2, 3, 1))
sketch5.addConstraint(Sketcher.Constraint("Coincident", 3, 2, 4, 2))
sketch5.addConstraint(Sketcher.Constraint("Coincident", 4, 1, 5, 1))
sketch5.addConstraint(Sketcher.Constraint("Coincident", 5, 2, 6, 1))
sketch5.addConstraint(Sketcher.Constraint("Coincident", 6, 2, 7, 1))
sketch5.addConstraint(Sketcher.Constraint("Coincident", 7, 2, 8, 1))
sketch5.addConstraint(Sketcher.Constraint("Coincident", 8, 2, 9, 1))
sketch5.addConstraint(Sketcher.Constraint("Coincident", 9, 2, 10, 2))
sketch5.addConstraint(Sketcher.Constraint("Coincident", 10, 1, 11, 1))
sketch5.addConstraint(Sketcher.Constraint("Coincident", 11, 2, 12, 2))
sketch5.addConstraint(Sketcher.Constraint("Coincident", 12, 1, 0, 1))
sketch5.addConstraint(Sketcher.Constraint("Coincident", 1, 3, -1, 1))
sketch5.addConstraint(Sketcher.Constraint("Coincident", 12, 3, -1, 1))
sketch5.addConstraint(Sketcher.Constraint("Radius", 1, 150.07))
sketch5.addConstraint(Sketcher.Constraint("Radius", 4, Q("0.1049882 in")))
sketch5.addConstraint(Sketcher.Constraint("Radius", 6, 2.6666))
sketch5.addConstraint(Sketcher.Constraint("Radius", 8, Q("0.1049882 in")))
sketch5.addConstraint(Sketcher.Constraint("Radius", 10, Q("0.1049882 in")))
sketch5.addConstraint(Sketcher.Constraint("Radius", 12, 341.36))
sketch5.addConstraint(Sketcher.Constraint("DistanceY", 8, 2, -1, 1, Q("4.091 in")))
sketch5.addConstraint(Sketcher.Constraint("DistanceX", 4, 3, 10, 3, Q("3.825 in")))
sketch5.addConstraint(Sketcher.Constraint("DistanceX", 2, 2, 5, 2, Q("1.525 in")))
sketch5.addConstraint(Sketcher.Constraint("DistanceY", 6, 2, 6, 3, Q("0.098 in")))
sketch5.addConstraint(Sketcher.Constraint("Distance", 0, Q("7.7386 in")))
sketch5.addConstraint(Sketcher.Constraint("Distance", 9, Q("0.9198 in")))
sketch5.addConstraint(Sketcher.Constraint("DistanceY", 6, 3, -1, 1, Q("2.6578 in")))
sketch5.addConstraint(Sketcher.Constraint("DistanceY", 8, 3, -1, 1, Q("4.0965 in")))
sketch5.addConstraint(Sketcher.Constraint("DistanceY", -1, 1, 0, 2, Q("5.0541 in")))
sketch5.addConstraint(Sketcher.Constraint("DistanceX", -1, 1, 5, 2, Q("7.2197 in")))
sketch5.addConstraint(Sketcher.Constraint("DistanceX", -1, 1, 7, 2, Q("11.0181 in")))
sketch5.addConstraint(Sketcher.Constraint("DistanceY", 10, 3, 6, 3, Q("0.5092 in")))
sketch5.addConstraint(Sketcher.Constraint("DistanceY", 10, 3, 4, 3, Q("1.0249 in")))
sketch5.addConstraint(Sketcher.Constraint("DistanceX", 0, 2, 4, 3, Q("10.4523 in")))
sketch5.addConstraint(Sketcher.Constraint("DistanceX", 1, 1, 4, 3, Q("1.6987 in")))
sketch5.addConstraint(Sketcher.Constraint("DistanceY", 2, 2, 1, 1, Q("0.0003 in")))
sketch5.addConstraint(Sketcher.Constraint("DistanceY", 4, 3, 3, 2, Q("0.1014 in")))
sketch5.addConstraint(Sketcher.Constraint("DistanceY", 4, 1, 3, 2, Q("0.1586 in")))
sketch5.addConstraint(Sketcher.Constraint("DistanceX", 6, 3, 4, 1, Q("0.1726 in")))
sketch5.addConstraint(Sketcher.Constraint("DistanceY", 7, 2, 8, 2, Q("0.1035 in")))
sketch5.addConstraint(Sketcher.Constraint("DistanceY", 10, 3, 10, 1, Q("0.1014 in")))
sketch5.addConstraint(Sketcher.Constraint("DistanceX", 10, 3, 11, 2, Q("1.7509 in")))
pocket4 = body.newObject("PartDesign::Pocket", "Pocket003")
pocket4.Profile = sketch5
pocket4.Type = "ThroughAll"
pocket4.Reversed = True

doc.recompute()
